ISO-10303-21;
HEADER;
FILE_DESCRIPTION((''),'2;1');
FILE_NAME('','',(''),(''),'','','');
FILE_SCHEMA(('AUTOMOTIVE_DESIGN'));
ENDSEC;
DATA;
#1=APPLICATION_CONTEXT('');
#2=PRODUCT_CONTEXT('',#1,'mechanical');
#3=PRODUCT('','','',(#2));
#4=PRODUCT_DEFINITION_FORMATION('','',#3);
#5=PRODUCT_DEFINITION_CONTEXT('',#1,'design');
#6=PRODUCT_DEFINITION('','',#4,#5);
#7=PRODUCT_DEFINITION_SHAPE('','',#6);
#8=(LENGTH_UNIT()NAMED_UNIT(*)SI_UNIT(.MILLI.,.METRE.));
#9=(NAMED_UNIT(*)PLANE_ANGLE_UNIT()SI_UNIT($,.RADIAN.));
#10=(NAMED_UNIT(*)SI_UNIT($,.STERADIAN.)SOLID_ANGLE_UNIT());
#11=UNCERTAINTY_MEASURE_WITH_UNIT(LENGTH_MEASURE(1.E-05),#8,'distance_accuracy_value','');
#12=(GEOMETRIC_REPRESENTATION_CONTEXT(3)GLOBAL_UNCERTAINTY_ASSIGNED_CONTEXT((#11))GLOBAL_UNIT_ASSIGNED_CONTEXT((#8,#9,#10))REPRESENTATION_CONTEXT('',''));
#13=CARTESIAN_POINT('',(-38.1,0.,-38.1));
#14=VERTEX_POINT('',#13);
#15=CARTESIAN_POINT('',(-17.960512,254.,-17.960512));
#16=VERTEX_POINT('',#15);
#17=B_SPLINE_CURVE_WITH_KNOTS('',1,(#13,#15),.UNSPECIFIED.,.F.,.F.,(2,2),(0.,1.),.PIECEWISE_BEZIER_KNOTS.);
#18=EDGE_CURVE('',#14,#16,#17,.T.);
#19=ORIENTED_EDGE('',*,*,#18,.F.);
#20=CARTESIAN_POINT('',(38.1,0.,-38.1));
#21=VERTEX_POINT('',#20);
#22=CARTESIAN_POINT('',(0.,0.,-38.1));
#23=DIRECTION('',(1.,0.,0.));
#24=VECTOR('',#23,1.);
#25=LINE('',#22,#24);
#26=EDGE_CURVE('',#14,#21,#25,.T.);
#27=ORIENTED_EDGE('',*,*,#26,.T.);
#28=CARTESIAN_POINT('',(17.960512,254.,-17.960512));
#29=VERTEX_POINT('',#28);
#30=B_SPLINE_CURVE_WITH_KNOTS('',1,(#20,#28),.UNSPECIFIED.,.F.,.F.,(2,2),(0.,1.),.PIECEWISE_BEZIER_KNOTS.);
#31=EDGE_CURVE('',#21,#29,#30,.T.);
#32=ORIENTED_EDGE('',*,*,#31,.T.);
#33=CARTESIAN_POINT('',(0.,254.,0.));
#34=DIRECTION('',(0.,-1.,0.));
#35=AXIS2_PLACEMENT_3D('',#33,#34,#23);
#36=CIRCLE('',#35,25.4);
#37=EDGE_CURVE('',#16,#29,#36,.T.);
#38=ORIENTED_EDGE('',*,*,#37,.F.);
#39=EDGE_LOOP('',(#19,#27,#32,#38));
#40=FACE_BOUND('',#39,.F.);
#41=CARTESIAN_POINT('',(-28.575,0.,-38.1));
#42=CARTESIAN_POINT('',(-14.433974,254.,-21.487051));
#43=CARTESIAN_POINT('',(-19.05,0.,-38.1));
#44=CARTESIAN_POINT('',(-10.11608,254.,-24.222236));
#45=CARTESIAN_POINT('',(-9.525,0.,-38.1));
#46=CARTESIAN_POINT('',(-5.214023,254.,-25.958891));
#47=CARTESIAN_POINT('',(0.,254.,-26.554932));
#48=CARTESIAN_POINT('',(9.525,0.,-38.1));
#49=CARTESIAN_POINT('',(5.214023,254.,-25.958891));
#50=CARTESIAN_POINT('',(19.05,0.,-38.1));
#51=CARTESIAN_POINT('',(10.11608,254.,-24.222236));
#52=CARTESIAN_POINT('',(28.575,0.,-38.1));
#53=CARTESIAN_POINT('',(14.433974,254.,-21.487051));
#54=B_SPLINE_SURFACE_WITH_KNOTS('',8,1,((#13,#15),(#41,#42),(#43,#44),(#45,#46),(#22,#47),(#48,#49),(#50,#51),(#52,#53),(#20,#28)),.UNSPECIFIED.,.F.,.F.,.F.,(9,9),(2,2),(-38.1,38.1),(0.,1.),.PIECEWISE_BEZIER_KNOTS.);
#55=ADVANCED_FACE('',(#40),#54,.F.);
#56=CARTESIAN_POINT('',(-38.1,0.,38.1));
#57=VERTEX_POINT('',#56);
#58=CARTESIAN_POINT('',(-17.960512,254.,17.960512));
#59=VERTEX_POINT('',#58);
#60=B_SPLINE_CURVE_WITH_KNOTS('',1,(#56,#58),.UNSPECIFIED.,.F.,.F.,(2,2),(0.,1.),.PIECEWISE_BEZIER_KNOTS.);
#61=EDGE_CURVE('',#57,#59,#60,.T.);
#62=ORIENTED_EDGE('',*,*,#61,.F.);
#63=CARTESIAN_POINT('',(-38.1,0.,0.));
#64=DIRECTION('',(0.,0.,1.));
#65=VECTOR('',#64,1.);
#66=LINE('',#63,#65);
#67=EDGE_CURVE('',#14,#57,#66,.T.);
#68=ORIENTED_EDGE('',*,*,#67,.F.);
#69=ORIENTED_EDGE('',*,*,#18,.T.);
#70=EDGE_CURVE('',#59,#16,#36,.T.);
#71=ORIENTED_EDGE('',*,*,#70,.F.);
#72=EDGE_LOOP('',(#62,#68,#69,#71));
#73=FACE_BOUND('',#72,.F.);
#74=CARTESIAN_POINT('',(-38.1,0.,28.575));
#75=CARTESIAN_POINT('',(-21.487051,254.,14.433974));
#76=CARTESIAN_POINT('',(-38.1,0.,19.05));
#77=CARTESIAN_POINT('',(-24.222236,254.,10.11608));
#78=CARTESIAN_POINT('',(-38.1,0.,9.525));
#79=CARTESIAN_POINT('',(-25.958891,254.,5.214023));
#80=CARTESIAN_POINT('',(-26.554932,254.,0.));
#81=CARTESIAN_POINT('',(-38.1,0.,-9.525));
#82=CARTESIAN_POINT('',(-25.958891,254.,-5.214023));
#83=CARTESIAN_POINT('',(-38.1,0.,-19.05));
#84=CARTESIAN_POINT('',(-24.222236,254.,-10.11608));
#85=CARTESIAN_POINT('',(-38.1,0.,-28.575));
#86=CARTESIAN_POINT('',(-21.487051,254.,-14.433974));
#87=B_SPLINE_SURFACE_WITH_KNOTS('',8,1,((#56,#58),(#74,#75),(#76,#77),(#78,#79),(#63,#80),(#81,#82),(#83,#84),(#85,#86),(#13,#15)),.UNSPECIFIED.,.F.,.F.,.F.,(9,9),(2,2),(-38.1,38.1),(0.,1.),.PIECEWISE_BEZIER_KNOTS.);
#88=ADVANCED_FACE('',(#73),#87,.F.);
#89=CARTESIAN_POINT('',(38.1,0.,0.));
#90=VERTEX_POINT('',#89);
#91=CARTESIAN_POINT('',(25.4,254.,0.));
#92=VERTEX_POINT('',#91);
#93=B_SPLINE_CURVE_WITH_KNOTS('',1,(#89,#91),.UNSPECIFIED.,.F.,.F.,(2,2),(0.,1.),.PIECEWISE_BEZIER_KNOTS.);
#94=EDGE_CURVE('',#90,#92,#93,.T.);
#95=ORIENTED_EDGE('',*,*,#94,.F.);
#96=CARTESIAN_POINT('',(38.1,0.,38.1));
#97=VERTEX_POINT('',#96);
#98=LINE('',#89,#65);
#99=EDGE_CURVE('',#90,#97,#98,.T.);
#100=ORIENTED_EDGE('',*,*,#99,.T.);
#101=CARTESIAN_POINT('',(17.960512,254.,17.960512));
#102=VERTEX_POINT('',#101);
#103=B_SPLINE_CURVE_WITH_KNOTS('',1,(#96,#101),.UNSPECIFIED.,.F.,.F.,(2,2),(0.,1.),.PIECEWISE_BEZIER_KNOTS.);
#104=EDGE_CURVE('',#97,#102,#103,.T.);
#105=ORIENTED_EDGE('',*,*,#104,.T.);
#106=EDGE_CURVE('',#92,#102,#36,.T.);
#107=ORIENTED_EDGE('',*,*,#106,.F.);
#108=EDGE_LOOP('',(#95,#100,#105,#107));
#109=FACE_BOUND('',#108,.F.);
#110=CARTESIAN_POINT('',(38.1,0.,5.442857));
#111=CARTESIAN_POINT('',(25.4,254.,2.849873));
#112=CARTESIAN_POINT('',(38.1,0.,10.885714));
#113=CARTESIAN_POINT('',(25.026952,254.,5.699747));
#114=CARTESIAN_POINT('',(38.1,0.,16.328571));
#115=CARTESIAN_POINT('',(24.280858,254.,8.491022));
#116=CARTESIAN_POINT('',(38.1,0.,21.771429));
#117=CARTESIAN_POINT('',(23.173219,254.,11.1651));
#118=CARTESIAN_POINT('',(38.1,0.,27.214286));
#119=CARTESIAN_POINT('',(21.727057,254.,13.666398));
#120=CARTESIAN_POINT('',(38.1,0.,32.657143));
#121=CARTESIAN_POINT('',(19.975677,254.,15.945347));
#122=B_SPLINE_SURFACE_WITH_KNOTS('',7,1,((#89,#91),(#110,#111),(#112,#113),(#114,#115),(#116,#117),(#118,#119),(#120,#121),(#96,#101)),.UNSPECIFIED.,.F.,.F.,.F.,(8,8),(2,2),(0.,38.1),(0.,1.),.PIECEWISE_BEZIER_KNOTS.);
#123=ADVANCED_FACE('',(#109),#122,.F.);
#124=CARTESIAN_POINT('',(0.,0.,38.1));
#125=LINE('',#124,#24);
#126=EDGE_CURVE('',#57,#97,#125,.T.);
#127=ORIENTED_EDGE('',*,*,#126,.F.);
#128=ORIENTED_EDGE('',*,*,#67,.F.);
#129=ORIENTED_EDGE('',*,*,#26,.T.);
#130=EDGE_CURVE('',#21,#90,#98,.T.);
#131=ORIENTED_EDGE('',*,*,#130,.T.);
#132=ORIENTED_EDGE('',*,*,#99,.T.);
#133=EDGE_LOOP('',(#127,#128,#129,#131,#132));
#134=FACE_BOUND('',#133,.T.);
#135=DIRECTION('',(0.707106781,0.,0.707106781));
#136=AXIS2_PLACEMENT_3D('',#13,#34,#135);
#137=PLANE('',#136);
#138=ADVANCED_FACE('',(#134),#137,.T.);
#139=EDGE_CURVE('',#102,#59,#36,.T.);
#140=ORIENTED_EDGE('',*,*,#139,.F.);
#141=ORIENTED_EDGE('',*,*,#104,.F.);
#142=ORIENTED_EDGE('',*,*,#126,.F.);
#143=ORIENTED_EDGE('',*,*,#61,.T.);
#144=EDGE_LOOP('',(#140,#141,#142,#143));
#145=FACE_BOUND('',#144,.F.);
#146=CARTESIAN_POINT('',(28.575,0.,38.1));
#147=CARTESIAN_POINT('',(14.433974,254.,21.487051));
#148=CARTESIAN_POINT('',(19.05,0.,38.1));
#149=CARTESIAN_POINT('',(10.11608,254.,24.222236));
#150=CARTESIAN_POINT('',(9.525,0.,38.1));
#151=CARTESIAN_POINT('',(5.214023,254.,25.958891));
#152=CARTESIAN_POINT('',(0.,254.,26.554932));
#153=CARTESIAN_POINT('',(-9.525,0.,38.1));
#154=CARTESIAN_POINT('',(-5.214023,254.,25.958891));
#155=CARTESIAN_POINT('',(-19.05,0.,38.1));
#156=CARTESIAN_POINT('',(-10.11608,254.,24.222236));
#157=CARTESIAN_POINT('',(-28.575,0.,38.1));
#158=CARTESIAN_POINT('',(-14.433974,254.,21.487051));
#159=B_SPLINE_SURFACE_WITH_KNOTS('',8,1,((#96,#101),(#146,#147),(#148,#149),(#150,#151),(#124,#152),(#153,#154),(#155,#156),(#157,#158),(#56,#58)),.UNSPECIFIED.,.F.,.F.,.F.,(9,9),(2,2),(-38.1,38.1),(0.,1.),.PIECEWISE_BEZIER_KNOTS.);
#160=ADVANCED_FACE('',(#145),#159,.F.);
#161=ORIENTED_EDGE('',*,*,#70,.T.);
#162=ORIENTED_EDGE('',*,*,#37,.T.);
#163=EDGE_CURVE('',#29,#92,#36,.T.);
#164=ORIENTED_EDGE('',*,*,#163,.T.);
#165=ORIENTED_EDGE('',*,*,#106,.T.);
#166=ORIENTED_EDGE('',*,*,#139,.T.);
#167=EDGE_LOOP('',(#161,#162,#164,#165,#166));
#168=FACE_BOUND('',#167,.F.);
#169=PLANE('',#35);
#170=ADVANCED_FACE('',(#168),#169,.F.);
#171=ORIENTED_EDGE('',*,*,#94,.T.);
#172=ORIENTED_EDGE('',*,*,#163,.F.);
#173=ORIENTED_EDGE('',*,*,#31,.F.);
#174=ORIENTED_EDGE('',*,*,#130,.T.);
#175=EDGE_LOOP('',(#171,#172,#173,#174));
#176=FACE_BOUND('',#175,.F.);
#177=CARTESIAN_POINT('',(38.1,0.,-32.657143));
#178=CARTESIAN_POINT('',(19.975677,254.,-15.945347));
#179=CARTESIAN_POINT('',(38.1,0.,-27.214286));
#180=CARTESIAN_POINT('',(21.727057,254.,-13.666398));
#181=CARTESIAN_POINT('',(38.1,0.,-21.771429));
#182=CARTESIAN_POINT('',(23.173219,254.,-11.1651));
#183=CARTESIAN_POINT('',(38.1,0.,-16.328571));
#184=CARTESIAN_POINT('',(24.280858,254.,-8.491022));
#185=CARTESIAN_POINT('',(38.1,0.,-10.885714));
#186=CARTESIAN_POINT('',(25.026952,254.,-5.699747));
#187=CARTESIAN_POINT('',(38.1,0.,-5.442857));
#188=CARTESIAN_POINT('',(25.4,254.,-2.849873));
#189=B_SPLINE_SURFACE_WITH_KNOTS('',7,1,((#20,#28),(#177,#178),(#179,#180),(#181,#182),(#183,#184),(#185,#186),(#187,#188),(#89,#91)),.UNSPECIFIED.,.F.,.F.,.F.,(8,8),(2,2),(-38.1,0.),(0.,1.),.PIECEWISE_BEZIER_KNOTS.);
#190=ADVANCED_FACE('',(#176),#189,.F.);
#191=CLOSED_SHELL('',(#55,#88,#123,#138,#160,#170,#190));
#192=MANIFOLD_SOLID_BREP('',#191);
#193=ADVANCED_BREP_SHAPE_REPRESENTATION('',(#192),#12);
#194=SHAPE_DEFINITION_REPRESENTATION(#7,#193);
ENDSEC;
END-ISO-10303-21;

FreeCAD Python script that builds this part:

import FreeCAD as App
import Part
import Sketcher
Q = App.Units.Quantity

doc = App.newDocument("Part")
body = doc.addObject("PartDesign::Body", "Body")

sketch1 = body.newObject("Sketcher::SketchObject", "Sketch")
sketch1.AttachmentSupport = (doc.getObject("XZ_Plane"), [""])
sketch1.MapMode = "FlatFace"
sketch1.addGeometry([
    Part.LineSegment(App.Vector(-38, 38, 0), App.Vector(-38, -38, 0)),
    Part.LineSegment(App.Vector(-38, -38, 0), App.Vector(38, -38, 0)),
    Part.LineSegment(App.Vector(38, -38, 0), App.Vector(38, 38, 0)),
    Part.LineSegment(App.Vector(38, 38, 0), App.Vector(-38, 38, 0)),
], False)
sketch1.addConstraint([
    Sketcher.Constraint("Coincident", 0, 2, 1, 1),
    Sketcher.Constraint("Coincident", 1, 2, 2, 1),
    Sketcher.Constraint("Coincident", 2, 2, 3, 1),
    Sketcher.Constraint("Coincident", 3, 2, 0, 1),
    Sketcher.Constraint("Vertical", 0),
    Sketcher.Constraint("Horizontal", 1),
    Sketcher.Constraint("Vertical", 2),
    Sketcher.Constraint("Horizontal", 3),
    Sketcher.Constraint("Symmetric", 0, 2, 2, 2, -1, 1),
    Sketcher.Constraint("Equal", 3, 0),
    Sketcher.Constraint("DistanceX", 1, 1, 1, 2, Q("3 in")),
])

sketch2 = body.newObject("Sketcher::SketchObject", "Sketch001")
sketch2.AttachmentSupport = (doc.getObject("XZ_Plane"), [""])
sketch2.MapMode = "FlatFace"
sketch2.AttachmentOffset = App.Placement(App.Vector(0, 0, -10 * 25.4), App.Rotation())
sketch2.addGeometry(Part.Circle(App.Vector(0, 0, 0), App.Vector(0, 0, 1), 25), False)
sketch2.addConstraint([
    Sketcher.Constraint("Coincident", 0, 3, -1, 1),
    Sketcher.Constraint("Diameter", 0, Q("2 in")),
])

additiveloft = body.newObject("PartDesign::AdditiveLoft", "AdditiveLoft")
additiveloft.Profile = sketch1
additiveloft.Sections = [sketch2]

doc.recompute()
